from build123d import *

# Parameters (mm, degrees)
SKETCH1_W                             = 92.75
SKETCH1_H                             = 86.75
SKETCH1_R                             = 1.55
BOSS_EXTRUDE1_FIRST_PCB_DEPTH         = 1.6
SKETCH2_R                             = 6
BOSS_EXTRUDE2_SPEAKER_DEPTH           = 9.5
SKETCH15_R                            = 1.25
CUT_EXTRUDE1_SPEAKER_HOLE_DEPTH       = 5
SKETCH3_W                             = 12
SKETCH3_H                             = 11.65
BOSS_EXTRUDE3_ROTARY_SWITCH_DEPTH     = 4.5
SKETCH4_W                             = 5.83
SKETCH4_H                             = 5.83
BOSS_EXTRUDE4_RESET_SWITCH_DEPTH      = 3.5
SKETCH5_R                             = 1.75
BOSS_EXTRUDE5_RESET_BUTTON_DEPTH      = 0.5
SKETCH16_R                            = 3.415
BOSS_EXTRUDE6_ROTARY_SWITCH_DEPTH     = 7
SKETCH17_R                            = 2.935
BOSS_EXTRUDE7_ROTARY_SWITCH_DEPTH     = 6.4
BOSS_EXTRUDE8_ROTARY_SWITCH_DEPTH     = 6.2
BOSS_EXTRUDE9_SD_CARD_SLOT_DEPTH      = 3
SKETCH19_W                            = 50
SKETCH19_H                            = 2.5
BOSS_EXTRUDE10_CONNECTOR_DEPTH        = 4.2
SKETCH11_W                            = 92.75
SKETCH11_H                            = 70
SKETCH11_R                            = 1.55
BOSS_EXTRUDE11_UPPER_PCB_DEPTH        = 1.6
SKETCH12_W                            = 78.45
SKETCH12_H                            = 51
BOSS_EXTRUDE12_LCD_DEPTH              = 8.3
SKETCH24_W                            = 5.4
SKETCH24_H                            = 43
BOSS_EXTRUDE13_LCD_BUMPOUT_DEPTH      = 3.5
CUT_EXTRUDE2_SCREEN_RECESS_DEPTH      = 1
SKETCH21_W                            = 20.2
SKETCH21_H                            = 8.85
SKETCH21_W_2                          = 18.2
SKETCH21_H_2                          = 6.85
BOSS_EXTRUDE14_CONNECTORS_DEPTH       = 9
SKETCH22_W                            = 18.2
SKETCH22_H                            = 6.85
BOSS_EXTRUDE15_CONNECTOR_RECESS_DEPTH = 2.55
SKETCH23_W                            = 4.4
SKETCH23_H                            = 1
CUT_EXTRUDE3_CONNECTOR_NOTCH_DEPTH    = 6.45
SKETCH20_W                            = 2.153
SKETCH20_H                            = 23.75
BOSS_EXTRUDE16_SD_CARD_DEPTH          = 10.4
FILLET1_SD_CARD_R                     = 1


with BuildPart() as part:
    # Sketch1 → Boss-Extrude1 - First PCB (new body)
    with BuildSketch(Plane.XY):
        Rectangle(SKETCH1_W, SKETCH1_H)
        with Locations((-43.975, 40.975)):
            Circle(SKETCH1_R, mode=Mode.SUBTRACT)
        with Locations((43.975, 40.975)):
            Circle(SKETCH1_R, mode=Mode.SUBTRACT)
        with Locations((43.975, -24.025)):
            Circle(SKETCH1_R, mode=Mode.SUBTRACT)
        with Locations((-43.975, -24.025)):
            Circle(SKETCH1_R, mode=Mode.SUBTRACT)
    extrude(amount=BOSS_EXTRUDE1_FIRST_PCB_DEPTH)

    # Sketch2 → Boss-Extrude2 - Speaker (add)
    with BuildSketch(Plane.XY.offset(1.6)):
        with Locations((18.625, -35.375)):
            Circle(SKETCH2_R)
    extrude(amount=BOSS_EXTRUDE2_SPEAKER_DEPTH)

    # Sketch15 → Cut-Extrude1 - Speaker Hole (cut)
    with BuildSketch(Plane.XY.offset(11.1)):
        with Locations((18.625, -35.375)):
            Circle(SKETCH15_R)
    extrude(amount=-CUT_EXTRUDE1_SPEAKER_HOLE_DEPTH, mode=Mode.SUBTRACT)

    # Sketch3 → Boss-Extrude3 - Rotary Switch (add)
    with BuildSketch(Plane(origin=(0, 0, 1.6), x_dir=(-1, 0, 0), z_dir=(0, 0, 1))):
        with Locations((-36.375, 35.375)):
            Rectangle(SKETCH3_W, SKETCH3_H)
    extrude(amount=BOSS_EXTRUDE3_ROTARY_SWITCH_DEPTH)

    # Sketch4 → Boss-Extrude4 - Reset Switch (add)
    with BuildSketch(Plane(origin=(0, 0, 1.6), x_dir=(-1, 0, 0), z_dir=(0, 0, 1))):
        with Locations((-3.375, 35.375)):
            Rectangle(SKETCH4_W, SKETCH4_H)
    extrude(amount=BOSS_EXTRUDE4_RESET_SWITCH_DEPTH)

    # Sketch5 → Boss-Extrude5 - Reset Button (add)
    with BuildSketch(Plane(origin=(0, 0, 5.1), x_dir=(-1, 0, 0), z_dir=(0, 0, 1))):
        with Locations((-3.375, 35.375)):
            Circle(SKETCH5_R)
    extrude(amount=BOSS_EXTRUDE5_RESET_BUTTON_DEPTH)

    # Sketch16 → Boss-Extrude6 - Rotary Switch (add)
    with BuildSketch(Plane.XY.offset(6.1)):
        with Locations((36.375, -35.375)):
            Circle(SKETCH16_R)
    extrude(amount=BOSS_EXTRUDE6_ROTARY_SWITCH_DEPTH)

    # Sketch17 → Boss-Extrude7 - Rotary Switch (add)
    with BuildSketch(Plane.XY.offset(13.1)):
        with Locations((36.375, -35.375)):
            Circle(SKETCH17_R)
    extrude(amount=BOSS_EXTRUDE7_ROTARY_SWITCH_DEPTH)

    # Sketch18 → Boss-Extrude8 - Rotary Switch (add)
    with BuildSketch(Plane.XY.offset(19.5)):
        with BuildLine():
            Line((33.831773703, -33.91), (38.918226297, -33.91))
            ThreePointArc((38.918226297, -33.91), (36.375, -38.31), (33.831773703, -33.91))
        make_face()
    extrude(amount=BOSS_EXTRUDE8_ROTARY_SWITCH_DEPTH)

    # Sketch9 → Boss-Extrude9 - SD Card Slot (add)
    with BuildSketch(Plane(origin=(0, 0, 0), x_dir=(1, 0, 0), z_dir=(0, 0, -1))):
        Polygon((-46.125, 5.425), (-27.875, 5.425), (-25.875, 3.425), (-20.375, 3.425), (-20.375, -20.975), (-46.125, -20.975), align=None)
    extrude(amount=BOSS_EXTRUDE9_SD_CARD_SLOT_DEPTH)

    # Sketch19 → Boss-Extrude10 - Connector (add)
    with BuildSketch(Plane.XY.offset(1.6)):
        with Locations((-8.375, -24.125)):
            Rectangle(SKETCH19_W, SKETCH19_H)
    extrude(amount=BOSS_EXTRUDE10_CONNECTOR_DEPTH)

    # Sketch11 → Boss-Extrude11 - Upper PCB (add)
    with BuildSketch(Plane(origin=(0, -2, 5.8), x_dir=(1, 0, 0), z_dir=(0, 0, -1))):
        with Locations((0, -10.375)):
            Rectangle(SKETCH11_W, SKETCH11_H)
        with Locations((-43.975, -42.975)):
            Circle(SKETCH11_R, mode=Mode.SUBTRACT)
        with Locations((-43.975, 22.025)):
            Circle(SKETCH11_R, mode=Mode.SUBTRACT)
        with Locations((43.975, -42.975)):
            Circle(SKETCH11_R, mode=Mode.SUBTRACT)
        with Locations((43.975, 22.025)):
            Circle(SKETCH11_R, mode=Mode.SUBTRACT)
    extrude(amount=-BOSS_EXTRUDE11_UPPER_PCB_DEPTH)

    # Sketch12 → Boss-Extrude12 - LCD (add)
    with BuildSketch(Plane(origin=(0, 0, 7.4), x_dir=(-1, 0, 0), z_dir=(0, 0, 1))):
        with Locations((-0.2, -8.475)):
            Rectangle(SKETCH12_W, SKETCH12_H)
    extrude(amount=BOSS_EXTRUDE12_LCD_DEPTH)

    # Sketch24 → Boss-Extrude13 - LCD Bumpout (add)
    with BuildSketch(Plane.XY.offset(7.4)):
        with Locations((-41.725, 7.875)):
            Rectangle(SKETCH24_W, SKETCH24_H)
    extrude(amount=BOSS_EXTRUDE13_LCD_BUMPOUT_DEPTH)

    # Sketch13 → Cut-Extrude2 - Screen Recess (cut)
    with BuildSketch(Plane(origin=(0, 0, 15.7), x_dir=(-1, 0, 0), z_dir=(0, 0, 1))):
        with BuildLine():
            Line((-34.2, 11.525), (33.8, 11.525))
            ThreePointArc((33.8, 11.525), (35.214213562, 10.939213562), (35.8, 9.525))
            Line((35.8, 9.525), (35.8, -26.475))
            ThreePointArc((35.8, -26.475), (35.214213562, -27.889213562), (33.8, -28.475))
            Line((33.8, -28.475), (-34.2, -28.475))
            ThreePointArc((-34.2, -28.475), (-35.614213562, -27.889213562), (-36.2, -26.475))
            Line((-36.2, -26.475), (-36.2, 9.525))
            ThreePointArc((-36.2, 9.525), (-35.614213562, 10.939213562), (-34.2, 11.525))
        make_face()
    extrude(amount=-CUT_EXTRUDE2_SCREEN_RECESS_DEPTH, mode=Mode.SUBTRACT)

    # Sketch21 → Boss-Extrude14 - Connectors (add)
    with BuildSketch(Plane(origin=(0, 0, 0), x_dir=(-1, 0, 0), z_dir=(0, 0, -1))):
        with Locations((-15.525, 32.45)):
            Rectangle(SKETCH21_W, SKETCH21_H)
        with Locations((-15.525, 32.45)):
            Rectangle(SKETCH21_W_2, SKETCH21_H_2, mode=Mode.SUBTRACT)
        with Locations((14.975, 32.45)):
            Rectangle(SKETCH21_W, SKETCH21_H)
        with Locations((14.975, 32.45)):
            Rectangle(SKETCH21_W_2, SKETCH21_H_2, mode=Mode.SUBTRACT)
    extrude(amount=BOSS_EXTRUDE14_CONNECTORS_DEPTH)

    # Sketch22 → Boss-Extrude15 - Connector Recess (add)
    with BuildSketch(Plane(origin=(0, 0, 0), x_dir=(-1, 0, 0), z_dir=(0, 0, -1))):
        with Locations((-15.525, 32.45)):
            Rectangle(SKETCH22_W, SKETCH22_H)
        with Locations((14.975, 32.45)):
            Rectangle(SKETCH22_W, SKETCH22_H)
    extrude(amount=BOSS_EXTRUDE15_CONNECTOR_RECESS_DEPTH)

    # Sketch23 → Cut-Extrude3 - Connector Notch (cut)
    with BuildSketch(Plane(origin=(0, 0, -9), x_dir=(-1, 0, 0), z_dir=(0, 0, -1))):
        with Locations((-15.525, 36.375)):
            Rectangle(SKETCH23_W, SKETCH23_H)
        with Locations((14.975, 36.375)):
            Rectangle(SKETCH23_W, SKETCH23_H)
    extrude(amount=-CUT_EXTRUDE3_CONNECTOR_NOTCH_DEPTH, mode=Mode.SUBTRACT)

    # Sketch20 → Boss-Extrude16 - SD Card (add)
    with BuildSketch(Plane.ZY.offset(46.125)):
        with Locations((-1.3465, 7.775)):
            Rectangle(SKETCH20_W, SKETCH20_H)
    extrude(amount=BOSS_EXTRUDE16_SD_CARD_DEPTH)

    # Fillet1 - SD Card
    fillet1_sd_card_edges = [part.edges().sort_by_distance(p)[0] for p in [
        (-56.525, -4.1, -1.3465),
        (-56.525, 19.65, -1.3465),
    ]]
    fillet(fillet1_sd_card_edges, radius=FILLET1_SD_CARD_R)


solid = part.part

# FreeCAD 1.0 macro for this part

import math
import FreeCAD as App
import Part
import Sketcher
from FreeCAD import Vector
Q = App.Units.Quantity


def edges_at(feature, points):
    """Names of the edges that pass closest to the given points."""
    edges = feature.Shape.Edges
    near = lambda p: min(range(len(edges)), key=lambda i: edges[i].distToShape(Part.Vertex(*p))[0])
    return sorted({f"Edge{near(p) + 1}" for p in points})

doc = App.newDocument("Part")
body = doc.addObject("PartDesign::Body", "Body")

# Sketch on XY plane
sketch1 = body.newObject("Sketcher::SketchObject", "Sketch")
sketch1.AttachmentSupport = (doc.getObject("XY_Plane"), [""])
sketch1.MapMode = "FlatFace"
sketch1.addGeometry(Part.LineSegment(Vector(-46.4, 43.4, 0), Vector(-46.4, -43.4, 0)), False)
sketch1.addGeometry(Part.LineSegment(Vector(-46.4, -43.4, 0), Vector(46.4, -43.4, 0)), False)
sketch1.addGeometry(Part.LineSegment(Vector(46.4, -43.4, 0), Vector(46.4, 43.4, 0)), False)
sketch1.addGeometry(Part.LineSegment(Vector(46.4, 43.4, 0), Vector(-46.4, 43.4, 0)), False)
sketch1.addGeometry(Part.Circle(Vector(-44, -24, 0), Vector(0, 0, 1), 1.6), False)
sketch1.addGeometry(Part.Circle(Vector(44, -24, 0), Vector(0, 0, 1), 1.6), False)
sketch1.addGeometry(Part.Circle(Vector(-44, 41, 0), Vector(0, 0, 1), 1.6), False)
sketch1.addGeometry(Part.Circle(Vector(44, 41, 0), Vector(0, 0, 1), 1.6), False)
sketch1.addConstraint(Sketcher.Constraint("Coincident", 0, 2, 1, 1))
sketch1.addConstraint(Sketcher.Constraint("Coincident", 1, 2, 2, 1))
sketch1.addConstraint(Sketcher.Constraint("Coincident", 2, 2, 3, 1))
sketch1.addConstraint(Sketcher.Constraint("Coincident", 3, 2, 0, 1))
sketch1.addConstraint(Sketcher.Constraint("Vertical", 0))
sketch1.addConstraint(Sketcher.Constraint("Horizontal", 1))
sketch1.addConstraint(Sketcher.Constraint("Vertical", 2))
sketch1.addConstraint(Sketcher.Constraint("Horizontal", 3))
sketch1.addConstraint(Sketcher.Constraint("Equal", 4, 5))
sketch1.addConstraint(Sketcher.Constraint("Equal", 5, 6))
sketch1.addConstraint(Sketcher.Constraint("Equal", 6, 7))
sketch1.addConstraint(Sketcher.Constraint("Symmetric", 0, 2, 2, 2, -1, 1))
sketch1.addConstraint(Sketcher.Constraint("Symmetric", 4, 3, 5, 3, -2))
sketch1.addConstraint(Sketcher.Constraint("Symmetric", 6, 3, 7, 3, -2))
sketch1.addConstraint(Sketcher.Constraint("Vertical", 4, 3, 6, 3))
sketch1.addConstraint(Sketcher.Constraint("Diameter", 4, 3.1))
sketch1.addConstraint(Sketcher.Constraint("DistanceY", 4, 3, 6, 3, 65.0))
sketch1.addConstraint(Sketcher.Constraint("DistanceX", 1, 1, 1, 2, 92.75))
sketch1.addConstraint(Sketcher.Constraint("DistanceY", 0, 2, 0, 1, 86.75))
sketch1.addConstraint(Sketcher.Constraint("DistanceX", 0, 2, 4, 3, 2.4))
sketch1.addConstraint(Sketcher.Constraint("DistanceY", 7, 3, 2, 2, 2.4))
pad1 = body.newObject("PartDesign::Pad", "Pad")
pad1.Profile = sketch1
pad1.Length = 1.6

# Sketch on XY plane
sketch2 = body.newObject("Sketcher::SketchObject", "Sketch001")
sketch2.AttachmentSupport = (doc.getObject("XY_Plane"), [""])
sketch2.MapMode = "FlatFace"
sketch2.AttachmentOffset = App.Placement(Vector(0, 0, 1.6), App.Rotation())
sketch2.addGeometry(Part.Circle(Vector(19, -35, 0), Vector(0, 0, 1), 6), False)
sketch2.addConstraint(Sketcher.Constraint("Diameter", 0, 12.0))
sketch2.addConstraint(Sketcher.Constraint("DistanceX", -1, 1, 0, 3, 18.625))
sketch2.addConstraint(Sketcher.Constraint("DistanceY", 0, 3, -1, 1, 35.375))
pad2 = body.newObject("PartDesign::Pad", "Pad001")
pad2.Profile = sketch2
pad2.Length = 9.5

# Sketch on XY plane
sketch3 = body.newObject("Sketcher::SketchObject", "Sketch002")
sketch3.AttachmentSupport = (doc.getObject("XY_Plane"), [""])
sketch3.MapMode = "FlatFace"
sketch3.AttachmentOffset = App.Placement(Vector(0, 0, 11.1), App.Rotation())
sketch3.addGeometry(Part.Circle(Vector(18.6, -35.4, 0), Vector(0, 0, 1), 1.2), False)
sketch3.addConstraint(Sketcher.Constraint("Diameter", 0, 2.5))
sketch3.addConstraint(Sketcher.Constraint("DistanceX", -1, 1, 0, 3, 18.625))
sketch3.addConstraint(Sketcher.Constraint("DistanceY", 0, 3, -1, 1, 35.375))
pocket1 = body.newObject("PartDesign::Pocket", "Pocket")
pocket1.Profile = sketch3
pocket1.Length = 5

# Sketch on XY plane
sketch4 = body.newObject("Sketcher::SketchObject", "Sketch003")
sketch4.AttachmentSupport = (doc.getObject("XY_Plane"), [""])
sketch4.MapMode = "FlatFace"
sketch4.AttachmentOffset = App.Placement(Vector(0, 0, 1.6), App.Rotation())
sketch4.addGeometry(Part.LineSegment(Vector(42, -41, 0), Vector(42, -30, 0)), False)
sketch4.addGeometry(Part.LineSegment(Vector(42, -30, 0), Vector(30, -30, 0)), False)
sketch4.addGeometry(Part.LineSegment(Vector(30, -30, 0), Vector(30, -41, 0)), False)
sketch4.addGeometry(Part.LineSegment(Vector(30, -41, 0), Vector(42, -41, 0)), False)
sketch4.addConstraint(Sketcher.Constraint("Coincident", 0, 2, 1, 1))
sketch4.addConstraint(Sketcher.Constraint("Coincident", 1, 2, 2, 1))
sketch4.addConstraint(Sketcher.Constraint("Coincident", 2, 2, 3, 1))
sketch4.addConstraint(Sketcher.Constraint("Coincident", 3, 2, 0, 1))
sketch4.addConstraint(Sketcher.Constraint("Vertical", 0))
sketch4.addConstraint(Sketcher.Constraint("Horizontal", 1))
sketch4.addConstraint(Sketcher.Constraint("Vertical", 2))
sketch4.addConstraint(Sketcher.Constraint("Horizontal", 3))
sketch4.addConstraint(Sketcher.Constraint("DistanceX", 1, 2, 1, 1, 12.0))
sketch4.addConstraint(Sketcher.Constraint("DistanceY", 0, 1, 0, 2, 11.65))
sketch4.addConstraint(Sketcher.Constraint("DistanceY", 2, 2, -1, 1, 41.2))
sketch4.addConstraint(Sketcher.Constraint("DistanceX", -1, 1, 0, 2, 42.375))
pad3 = body.newObject("PartDesign::Pad", "Pad002")
pad3.Profile = sketch4
pad3.Length = 4.5

# Sketch on XY plane
sketch5 = body.newObject("Sketcher::SketchObject", "Sketch004")
sketch5.AttachmentSupport = (doc.getObject("XY_Plane"), [""])
sketch5.MapMode = "FlatFace"
sketch5.AttachmentOffset = App.Placement(Vector(0, 0, 1.6), App.Rotation())
sketch5.addGeometry(Part.LineSegment(Vector(6, -38, 0), Vector(6, -32, 0)), False)
sketch5.addGeometry(Part.LineSegment(Vector(6, -32, 0), Vector(0, -32, 0)), False)
sketch5.addGeometry(Part.LineSegment(Vector(0, -32, 0), Vector(0, -38, 0)), False)
sketch5.addGeometry(Part.LineSegment(Vector(0, -38, 0), Vector(6, -38, 0)), False)
sketch5.addConstraint(Sketcher.Constraint("Coincident", 0, 2, 1, 1))
sketch5.addConstraint(Sketcher.Constraint("Coincident", 1, 2, 2, 1))
sketch5.addConstraint(Sketcher.Constraint("Coincident", 2, 2, 3, 1))
sketch5.addConstraint(Sketcher.Constraint("Coincident", 3, 2, 0, 1))
sketch5.addConstraint(Sketcher.Constraint("Vertical", 0))
sketch5.addConstraint(Sketcher.Constraint("Horizontal", 1))
sketch5.addConstraint(Sketcher.Constraint("Vertical", 2))
sketch5.addConstraint(Sketcher.Constraint("Horizontal", 3))
sketch5.addConstraint(Sketcher.Constraint("Equal", 3, 0))
sketch5.addConstraint(Sketcher.Constraint("DistanceX", 1, 2, 1, 1, 5.83))
sketch5.addConstraint(Sketcher.Constraint("DistanceX", -1, 1, 0, 2, 6.29))
sketch5.addConstraint(Sketcher.Constraint("DistanceY", 0, 2, -1, 1, 32.46))
pad4 = body.newObject("PartDesign::Pad", "Pad003")
pad4.Profile = sketch5
pad4.Length = 3.5

# Sketch on XY plane
sketch6 = body.newObject("Sketcher::SketchObject", "Sketch005")
sketch6.AttachmentSupport = (doc.getObject("XY_Plane"), [""])
sketch6.MapMode = "FlatFace"
sketch6.AttachmentOffset = App.Placement(Vector(0, 0, 5.1), App.Rotation())
sketch6.addGeometry(Part.Circle(Vector(3.4, -35.4, 0), Vector(0, 0, 1), 1.8), False)
sketch6.addConstraint(Sketcher.Constraint("Diameter", 0, 3.5))
sketch6.addConstraint(Sketcher.Constraint("DistanceX", -1, 1, 0, 3, 3.375))
sketch6.addConstraint(Sketcher.Constraint("DistanceY", 0, 3, -1, 1, 35.375))
pad5 = body.newObject("PartDesign::Pad", "Pad004")
pad5.Profile = sketch6
pad5.Length = 0.5

# Sketch on XY plane
sketch7 = body.newObject("Sketcher::SketchObject", "Sketch006")
sketch7.AttachmentSupport = (doc.getObject("XY_Plane"), [""])
sketch7.MapMode = "FlatFace"
sketch7.AttachmentOffset = App.Placement(Vector(0, 0, 6.1), App.Rotation())
sketch7.addGeometry(Part.Circle(Vector(36.4, -35.4, 0), Vector(0, 0, 1), 3.4), False)
sketch7.addConstraint(Sketcher.Constraint("Diameter", 0, 6.83))
sketch7.addConstraint(Sketcher.Constraint("DistanceX", -1, 1, 0, 3, 36.375))
sketch7.addConstraint(Sketcher.Constraint("DistanceY", 0, 3, -1, 1, 35.375))
pad6 = body.newObject("PartDesign::Pad", "Pad005")
pad6.Profile = sketch7
pad6.Length = 7

# Sketch on XY plane
sketch8 = body.newObject("Sketcher::SketchObject", "Sketch007")
sketch8.AttachmentSupport = (doc.getObject("XY_Plane"), [""])
sketch8.MapMode = "FlatFace"
sketch8.AttachmentOffset = App.Placement(Vector(0, 0, 13.1), App.Rotation())
sketch8.addGeometry(Part.Circle(Vector(36.4, -35.4, 0), Vector(0, 0, 1), 2.9), False)
sketch8.addConstraint(Sketcher.Constraint("Diameter", 0, 5.87))
sketch8.addConstraint(Sketcher.Constraint("DistanceX", -1, 1, 0, 3, 36.375))
sketch8.addConstraint(Sketcher.Constraint("DistanceY", 0, 3, -1, 1, 35.375))
pad7 = body.newObject("PartDesign::Pad", "Pad006")
pad7.Profile = sketch8
pad7.Length = 6.4

# Sketch on XY plane
sketch9 = body.newObject("Sketcher::SketchObject", "Sketch008")
sketch9.AttachmentSupport = (doc.getObject("XY_Plane"), [""])
sketch9.MapMode = "FlatFace"
sketch9.AttachmentOffset = App.Placement(Vector(0, 0, 19.5), App.Rotation())
sketch9.addGeometry(Part.LineSegment(Vector(38.9, -33.9, 0), Vector(33.8, -33.9, 0)), False)
sketch9.addGeometry(Part.ArcOfCircle(Part.Circle(Vector(36.4, -35.4, 0), Vector(0, 0, 1), 2.9), math.radians(150), math.radians(390)), False)
sketch9.addConstraint(Sketcher.Constraint("Coincident", 0, 1, 1, 2))
sketch9.addConstraint(Sketcher.Constraint("Coincident", 1, 1, 0, 2))
sketch9.addConstraint(Sketcher.Constraint("Horizontal", 0))
sketch9.addConstraint(Sketcher.Constraint("Radius", 1, 2.935))
sketch9.addConstraint(Sketcher.Constraint("DistanceY", 0, 1, -1, 1, 33.91))
sketch9.addConstraint(Sketcher.Constraint("DistanceX", -1, 1, 1, 3, 36.375))
sketch9.addConstraint(Sketcher.Constraint("DistanceY", 1, 3, -1, 1, 35.375))
pad8 = body.newObject("PartDesign::Pad", "Pad007")
pad8.Profile = sketch9
pad8.Length = 6.2

# Sketch on XY plane
sketch10 = body.newObject("Sketcher::SketchObject", "Sketch009")
sketch10.AttachmentSupport = (doc.getObject("XY_Plane"), [""])
sketch10.MapMode = "FlatFace"
sketch10.addGeometry(Part.LineSegment(Vector(-27.9, -5.4, 0), Vector(-46.1, -5.4, 0)), False)
sketch10.addGeometry(Part.LineSegment(Vector(-46.1, -5.4, 0), Vector(-46.1, 21, 0)), False)
sketch10.addGeometry(Part.LineSegment(Vector(-46.1, 21, 0), Vector(-20.4, 21, 0)), False)
sketch10.addGeometry(Part.LineSegment(Vector(-20.4, 21, 0), Vector(-20.4, -3.4, 0)), False)
sketch10.addGeometry(Part.LineSegment(Vector(-20.4, -3.4, 0), Vector(-25.9, -3.4, 0)), False)
sketch10.addGeometry(Part.LineSegment(Vector(-25.9, -3.4, 0), Vector(-27.9, -5.4, 0)), False)
sketch10.addConstraint(Sketcher.Constraint("Coincident", 0, 2, 1, 1))
sketch10.addConstraint(Sketcher.Constraint("Coincident", 1, 2, 2, 1))
sketch10.addConstraint(Sketcher.Constraint("Coincident", 2, 2, 3, 1))
sketch10.addConstraint(Sketcher.Constraint("Coincident", 3, 2, 4, 1))
sketch10.addConstraint(Sketcher.Constraint("Coincident", 4, 2, 5, 1))
sketch10.addConstraint(Sketcher.Constraint("Coincident", 5, 2, 0, 1))
sketch10.addConstraint(Sketcher.Constraint("Horizontal", 0))
sketch10.addConstraint(Sketcher.Constraint("Vertical", 1))
sketch10.addConstraint(Sketcher.Constraint("Horizontal", 2))
sketch10.addConstraint(Sketcher.Constraint("Vertical", 3))
sketch10.addConstraint(Sketcher.Constraint("Horizontal", 4))
sketch10.addConstraint(Sketcher.Constraint("Angle", 5, Q("-135 deg")))
sketch10.addConstraint(Sketcher.Constraint("DistanceX", 4, 2, 4, 1, 5.5))
sketch10.addConstraint(Sketcher.Constraint("DistanceY", 1, 1, 1, 2, 26.4))
sketch10.addConstraint(Sketcher.Constraint("DistanceY", 3, 2, 3, 1, 24.4))
sketch10.addConstraint(Sketcher.Constraint("DistanceX", 0, 2, 0, 1, 18.25))
sketch10.addConstraint(Sketcher.Constraint("DistanceX", 0, 2, -1, 1, 46.125))
sketch10.addConstraint(Sketcher.Constraint("DistanceY", 0, 2, -1, 1, 5.425))
pad9 = body.newObject("PartDesign::Pad", "Pad008")
pad9.Profile = sketch10
pad9.Length = 3
pad9.Reversed = True

# Sketch on XY plane
sketch11 = body.newObject("Sketcher::SketchObject", "Sketch010")
sketch11.AttachmentSupport = (doc.getObject("XY_Plane"), [""])
sketch11.MapMode = "FlatFace"
sketch11.AttachmentOffset = App.Placement(Vector(0, 0, 1.6), App.Rotation())
sketch11.addGeometry(Part.LineSegment(Vector(-33.4, -22.9, 0), Vector(-33.4, -25.4, 0)), False)
sketch11.addGeometry(Part.LineSegment(Vector(-33.4, -25.4, 0), Vector(16.6, -25.4, 0)), False)
sketch11.addGeometry(Part.LineSegment(Vector(16.6, -25.4, 0), Vector(16.6, -22.9, 0)), False)
sketch11.addGeometry(Part.LineSegment(Vector(16.6, -22.9, 0), Vector(-33.4, -22.9, 0)), False)
sketch11.addConstraint(Sketcher.Constraint("Coincident", 0, 2, 1, 1))
sketch11.addConstraint(Sketcher.Constraint("Coincident", 1, 2, 2, 1))
sketch11.addConstraint(Sketcher.Constraint("Coincident", 2, 2, 3, 1))
sketch11.addConstraint(Sketcher.Constraint("Coincident", 3, 2, 0, 1))
sketch11.addConstraint(Sketcher.Constraint("Vertical", 0))
sketch11.addConstraint(Sketcher.Constraint("Horizontal", 1))
sketch11.addConstraint(Sketcher.Constraint("Vertical", 2))
sketch11.addConstraint(Sketcher.Constraint("Horizontal", 3))
sketch11.addConstraint(Sketcher.Constraint("DistanceX", 1, 1, 1, 2, 50.0))
sketch11.addConstraint(Sketcher.Constraint("DistanceY", 0, 2, 0, 1, 2.5))
sketch11.addConstraint(Sketcher.Constraint("DistanceX", 0, 2, -1, 1, 33.375))
sketch11.addConstraint(Sketcher.Constraint("DistanceY", 0, 2, -1, 1, 25.375))
pad10 = body.newObject("PartDesign::Pad", "Pad009")
pad10.Profile = sketch11
pad10.Length = 4.2

# Sketch on XY plane
sketch12 = body.newObject("Sketcher::SketchObject", "Sketch011")
sketch12.AttachmentSupport = (doc.getObject("XY_Plane"), [""])
sketch12.MapMode = "FlatFace"
sketch12.AttachmentOffset = App.Placement(Vector(0, 0, 5.8), App.Rotation())
sketch12.addGeometry(Part.LineSegment(Vector(-46.4, -26.6, 0), Vector(-46.4, 43.4, 0)), False)
sketch12.addGeometry(Part.LineSegment(Vector(-46.4, 43.4, 0), Vector(46.4, 43.4, 0)), False)
sketch12.addGeometry(Part.LineSegment(Vector(46.4, 43.4, 0), Vector(46.4, -26.6, 0)), False)
sketch12.addGeometry(Part.LineSegment(Vector(46.4, -26.6, 0), Vector(-46.4, -26.6, 0)), False)
sketch12.addGeometry(Part.Circle(Vector(-44, 41, 0), Vector(0, 0, 1), 1.6), False)
sketch12.addGeometry(Part.Circle(Vector(44, 41, 0), Vector(0, 0, 1), 1.6), False)
sketch12.addGeometry(Part.Circle(Vector(-44, -24, 0), Vector(0, 0, 1), 1.6), False)
sketch12.addGeometry(Part.Circle(Vector(44, -24, 0), Vector(0, 0, 1), 1.6), False)
sketch12.addConstraint(Sketcher.Constraint("Coincident", 0, 2, 1, 1))
sketch12.addConstraint(Sketcher.Constraint("Coincident", 1, 2, 2, 1))
sketch12.addConstraint(Sketcher.Constraint("Coincident", 2, 2, 3, 1))
sketch12.addConstraint(Sketcher.Constraint("Coincident", 3, 2, 0, 1))
sketch12.addConstraint(Sketcher.Constraint("Vertical", 0))
sketch12.addConstraint(Sketcher.Constraint("Horizontal", 1))
sketch12.addConstraint(Sketcher.Constraint("Vertical", 2))
sketch12.addConstraint(Sketcher.Constraint("Horizontal", 3))
sketch12.addConstraint(Sketcher.Constraint("Equal", 4, 5))
sketch12.addConstraint(Sketcher.Constraint("Equal", 5, 6))
sketch12.addConstraint(Sketcher.Constraint("Equal", 6, 7))
sketch12.addConstraint(Sketcher.Constraint("Symmetric", 4, 3, 5, 3, -2))
sketch12.addConstraint(Sketcher.Constraint("Symmetric", 6, 3, 7, 3, -2))
sketch12.addConstraint(Sketcher.Constraint("Vertical", 4, 3, 6, 3))
sketch12.addConstraint(Sketcher.Constraint("Diameter", 4, 3.1))
sketch12.addConstraint(Sketcher.Constraint("DistanceY", 0, 1, 0, 2, 70.0))
sketch12.addConstraint(Sketcher.Constraint("DistanceY", 6, 3, 4, 3, 65.0))
sketch12.addConstraint(Sketcher.Constraint("DistanceX", 1, 1, 1, 2, 92.75))
sketch12.addConstraint(Sketcher.Constraint("DistanceX", 0, 2, 4, 3, 2.4))
sketch12.addConstraint(Sketcher.Constraint("DistanceY", 4, 3, 0, 2, 2.4))
sketch12.addConstraint(Sketcher.Constraint("DistanceX", 5, 3, 1, 2, 2.4))
sketch12.addConstraint(Sketcher.Constraint("DistanceY", -1, 1, 4, 3, 40.975))
pad11 = body.newObject("PartDesign::Pad", "Pad010")
pad11.Profile = sketch12
pad11.Length = 1.6

# Sketch on XY plane
sketch13 = body.newObject("Sketcher::SketchObject", "Sketch012")
sketch13.AttachmentSupport = (doc.getObject("XY_Plane"), [""])
sketch13.MapMode = "FlatFace"
sketch13.AttachmentOffset = App.Placement(Vector(0, 0, 7.4), App.Rotation())
sketch13.addGeometry(Part.LineSegment(Vector(39, -17, 0), Vector(39, 34, 0)), False)
sketch13.addGeometry(Part.LineSegment(Vector(39, 34, 0), Vector(-39, 34, 0)), False)
sketch13.addGeometry(Part.LineSegment(Vector(-39, 34, 0), Vector(-39, -17, 0)), False)
sketch13.addGeometry(Part.LineSegment(Vector(-39, -17, 0), Vector(39, -17, 0)), False)
sketch13.addConstraint(Sketcher.Constraint("Coincident", 0, 2, 1, 1))
sketch13.addConstraint(Sketcher.Constraint("Coincident", 1, 2, 2, 1))
sketch13.addConstraint(Sketcher.Constraint("Coincident", 2, 2, 3, 1))
sketch13.addConstraint(Sketcher.Constraint("Coincident", 3, 2, 0, 1))
sketch13.addConstraint(Sketcher.Constraint("Vertical", 0))
sketch13.addConstraint(Sketcher.Constraint("Horizontal", 1))
sketch13.addConstraint(Sketcher.Constraint("Vertical", 2))
sketch13.addConstraint(Sketcher.Constraint("Horizontal", 3))
sketch13.addConstraint(Sketcher.Constraint("DistanceY", 0, 1, 0, 2, 51.0))
sketch13.addConstraint(Sketcher.Constraint("DistanceX", 1, 2, 1, 1, 78.45))
sketch13.addConstraint(Sketcher.Constraint("DistanceX", -1, 1, 0, 2, 39.425))
sketch13.addConstraint(Sketcher.Constraint("DistanceY", -1, 1, 0, 2, 33.975))
pad12 = body.newObject("PartDesign::Pad", "Pad011")
pad12.Profile = sketch13
pad12.Length = 8.3

# Sketch on XY plane
sketch14 = body.newObject("Sketcher::SketchObject", "Sketch013")
sketch14.AttachmentSupport = (doc.getObject("XY_Plane"), [""])
sketch14.MapMode = "FlatFace"
sketch14.AttachmentOffset = App.Placement(Vector(0, 0, 7.4), App.Rotation())
sketch14.addGeometry(Part.LineSegment(Vector(-44, 29, 0), Vector(-44, -14, 0)), False)
sketch14.addGeometry(Part.LineSegment(Vector(-44, -14, 0), Vector(-39, -14, 0)), False)
sketch14.addGeometry(Part.LineSegment(Vector(-39, -14, 0), Vector(-39, 29, 0)), False)
sketch14.addGeometry(Part.LineSegment(Vector(-39, 29, 0), Vector(-44, 29, 0)), False)
sketch14.addConstraint(Sketcher.Constraint("Coincident", 0, 2, 1, 1))
sketch14.addConstraint(Sketcher.Constraint("Coincident", 1, 2, 2, 1))
sketch14.addConstraint(Sketcher.Constraint("Coincident", 2, 2, 3, 1))
sketch14.addConstraint(Sketcher.Constraint("Coincident", 3, 2, 0, 1))
sketch14.addConstraint(Sketcher.Constraint("Vertical", 0))
sketch14.addConstraint(Sketcher.Constraint("Horizontal", 1))
sketch14.addConstraint(Sketcher.Constraint("Vertical", 2))
sketch14.addConstraint(Sketcher.Constraint("Horizontal", 3))
sketch14.addConstraint(Sketcher.Constraint("DistanceY", 0, 2, 0, 1, 43.0))
sketch14.addConstraint(Sketcher.Constraint("DistanceX", 1, 1, 1, 2, 5.4))
sketch14.addConstraint(Sketcher.Constraint("DistanceX", 0, 2, -1, 1, 44.425))
sketch14.addConstraint(Sketcher.Constraint("DistanceY", 0, 2, -1, 1, 13.625))
pad13 = body.newObject("PartDesign::Pad", "Pad012")
pad13.Profile = sketch14
pad13.Length = 3.5

# Sketch on XY plane
sketch15 = body.newObject("Sketcher::SketchObject", "Sketch014")
sketch15.AttachmentSupport = (doc.getObject("XY_Plane"), [""])
sketch15.MapMode = "FlatFace"
sketch15.AttachmentOffset = App.Placement(Vector(0, 0, 15.7), App.Rotation())
sketch15.addGeometry(Part.LineSegment(Vector(-33.8, -11.5, 0), Vector(34.2, -11.5, 0)), False)
sketch15.addGeometry(Part.ArcOfCircle(Part.Circle(Vector(34.2, -9.5, 0), Vector(0, 0, 1), 2), math.radians(-90), math.radians(0)), False)
sketch15.addGeometry(Part.LineSegment(Vector(36.2, -9.5, 0), Vector(36.2, 26.5, 0)), False)
sketch15.addGeometry(Part.ArcOfCircle(Part.Circle(Vector(34.2, 26.5, 0), Vector(0, 0, 1), 2), math.radians(0), math.radians(90)), False)
sketch15.addGeometry(Part.LineSegment(Vector(34.2, 28.5, 0), Vector(-33.8, 28.5, 0)), False)
sketch15.addGeometry(Part.ArcOfCircle(Part.Circle(Vector(-33.8, 26.5, 0), Vector(0, 0, 1), 2), math.radians(90), math.radians(180)), False)
sketch15.addGeometry(Part.LineSegment(Vector(-35.8, 26.5, 0), Vector(-35.8, -9.5, 0)), False)
sketch15.addGeometry(Part.ArcOfCircle(Part.Circle(Vector(-33.8, -9.5, 0), Vector(0, 0, 1), 2), math.radians(-180), math.radians(-90)), False)
sketch15.addConstraint(Sketcher.Constraint("Tangent", 0, 2, 1, 1))
sketch15.addConstraint(Sketcher.Constraint("Tangent", 1, 2, 2, 1))
sketch15.addConstraint(Sketcher.Constraint("Tangent", 2, 2, 3, 1))
sketch15.addConstraint(Sketcher.Constraint("Tangent", 3, 2, 4, 1))
sketch15.addConstraint(Sketcher.Constraint("Tangent", 4, 2, 5, 1))
sketch15.addConstraint(Sketcher.Constraint("Tangent", 5, 2, 6, 1))
sketch15.addConstraint(Sketcher.Constraint("Tangent", 6, 2, 7, 1))
sketch15.addConstraint(Sketcher.Constraint("Tangent", 7, 2, 0, 1))
sketch15.addConstraint(Sketcher.Constraint("Horizontal", 0))
sketch15.addConstraint(Sketcher.Constraint("Vertical", 2))
sketch15.addConstraint(Sketcher.Constraint("Horizontal", 4))
sketch15.addConstraint(Sketcher.Constraint("Vertical", 6))
sketch15.addConstraint(Sketcher.Constraint("Equal", 1, 3))
sketch15.addConstraint(Sketcher.Constraint("Equal", 3, 5))
sketch15.addConstraint(Sketcher.Constraint("Equal", 5, 7))
sketch15.addConstraint(Sketcher.Constraint("Radius", 1, 2.0))
sketch15.addConstraint(Sketcher.Constraint("DistanceX", 0, 1, 0, 2, 68.0))
sketch15.addConstraint(Sketcher.Constraint("DistanceY", 2, 1, 2, 2, 36.0))
sketch15.addConstraint(Sketcher.Constraint("DistanceX", -1, 1, 1, 3, 34.2))
sketch15.addConstraint(Sketcher.Constraint("DistanceY", 1, 3, -1, 1, 9.525))
pocket2 = body.newObject("PartDesign::Pocket", "Pocket001")
pocket2.Profile = sketch15
pocket2.Length = 1

# Sketch on XY plane
sketch16 = body.newObject("Sketcher::SketchObject", "Sketch015")
sketch16.AttachmentSupport = (doc.getObject("XY_Plane"), [""])
sketch16.MapMode = "FlatFace"
sketch16.addGeometry(Part.LineSegment(Vector(26, 37, 0), Vector(26, 28, 0)), False)
sketch16.addGeometry(Part.LineSegment(Vector(26, 28, 0), Vector(5, 28, 0)), False)
sketch16.addGeometry(Part.LineSegment(Vector(5, 28, 0), Vector(5, 37, 0)), False)
sketch16.addGeometry(Part.LineSegment(Vector(5, 37, 0), Vector(26, 37, 0)), False)
sketch16.addGeometry(Part.LineSegment(Vector(6, 29, 0), Vector(25, 29, 0)), False)
sketch16.addGeometry(Part.LineSegment(Vector(25, 29, 0), Vector(25, 36, 0)), False)
sketch16.addGeometry(Part.LineSegment(Vector(25, 36, 0), Vector(6, 36, 0)), False)
sketch16.addGeometry(Part.LineSegment(Vector(6, 36, 0), Vector(6, 29, 0)), False)
sketch16.addGeometry(Part.LineSegment(Vector(-5, 37, 0), Vector(-5, 28, 0)), False)
sketch16.addGeometry(Part.LineSegment(Vector(-5, 28, 0), Vector(-25, 28, 0)), False)
sketch16.addGeometry(Part.LineSegment(Vector(-25, 28, 0), Vector(-25, 37, 0)), False)
sketch16.addGeometry(Part.LineSegment(Vector(-25, 37, 0), Vector(-5, 37, 0)), False)
sketch16.addGeometry(Part.LineSegment(Vector(-24, 29, 0), Vector(-6, 29, 0)), False)
sketch16.addGeometry(Part.LineSegment(Vector(-6, 29, 0), Vector(-6, 36, 0)), False)
sketch16.addGeometry(Part.LineSegment(Vector(-6, 36, 0), Vector(-24, 36, 0)), False)
sketch16.addGeometry(Part.LineSegment(Vector(-24, 36, 0), Vector(-24, 29, 0)), False)
sketch16.addConstraint(Sketcher.Constraint("Coincident", 0, 2, 1, 1))
sketch16.addConstraint(Sketcher.Constraint("Coincident", 1, 2, 2, 1))
sketch16.addConstraint(Sketcher.Constraint("Coincident", 2, 2, 3, 1))
sketch16.addConstraint(Sketcher.Constraint("Coincident", 3, 2, 0, 1))
sketch16.addConstraint(Sketcher.Constraint("Coincident", 4, 2, 5, 1))
sketch16.addConstraint(Sketcher.Constraint("Coincident", 5, 2, 6, 1))
sketch16.addConstraint(Sketcher.Constraint("Coincident", 6, 2, 7, 1))
sketch16.addConstraint(Sketcher.Constraint("Coincident", 7, 2, 4, 1))
sketch16.addConstraint(Sketcher.Constraint("Coincident", 8, 2, 9, 1))
sketch16.addConstraint(Sketcher.Constraint("Coincident", 9, 2, 10, 1))
sketch16.addConstraint(Sketcher.Constraint("Coincident", 10, 2, 11, 1))
sketch16.addConstraint(Sketcher.Constraint("Coincident", 11, 2, 8, 1))
sketch16.addConstraint(Sketcher.Constraint("Coincident", 12, 2, 13, 1))
sketch16.addConstraint(Sketcher.Constraint("Coincident", 13, 2, 14, 1))
sketch16.addConstraint(Sketcher.Constraint("Coincident", 14, 2, 15, 1))
sketch16.addConstraint(Sketcher.Constraint("Coincident", 15, 2, 12, 1))
sketch16.addConstraint(Sketcher.Constraint("Vertical", 0))
sketch16.addConstraint(Sketcher.Constraint("Horizontal", 1))
sketch16.addConstraint(Sketcher.Constraint("Vertical", 2))
sketch16.addConstraint(Sketcher.Constraint("Horizontal", 3))
sketch16.addConstraint(Sketcher.Constraint("Horizontal", 4))
sketch16.addConstraint(Sketcher.Constraint("Vertical", 5))
sketch16.addConstraint(Sketcher.Constraint("Horizontal", 6))
sketch16.addConstraint(Sketcher.Constraint("Vertical", 7))
sketch16.addConstraint(Sketcher.Constraint("Vertical", 8))
sketch16.addConstraint(Sketcher.Constraint("Horizontal", 9))
sketch16.addConstraint(Sketcher.Constraint("Vertical", 10))
sketch16.addConstraint(Sketcher.Constraint("Horizontal", 11))
sketch16.addConstraint(Sketcher.Constraint("Horizontal", 12))
sketch16.addConstraint(Sketcher.Constraint("Vertical", 13))
sketch16.addConstraint(Sketcher.Constraint("Horizontal", 14))
sketch16.addConstraint(Sketcher.Constraint("Vertical", 15))
sketch16.addConstraint(Sketcher.Constraint("Horizontal", 1, 2, 8, 2))
sketch16.addConstraint(Sketcher.Constraint("Horizontal", 3, 2, 10, 2))
sketch16.addConstraint(Sketcher.Constraint("Horizontal", 7, 2, 12, 2))
sketch16.addConstraint(Sketcher.Constraint("Horizontal", 6, 2, 13, 2))
sketch16.addConstraint(Sketcher.Constraint("Equal", 3, 9))
sketch16.addConstraint(Sketcher.Constraint("Equal", 6, 12))
sketch16.addConstraint(Sketcher.Constraint("DistanceX", 1, 2, 1, 1, 20.2))
sketch16.addConstraint(Sketcher.Constraint("DistanceX", 4, 1, 4, 2, 18.2))
sketch16.addConstraint(Sketcher.Constraint("DistanceX", 4, 2, 0, 2, 1.0))
sketch16.addConstraint(Sketcher.Constraint("DistanceY", 0, 2, 4, 2, 1.0))
sketch16.addConstraint(Sketcher.Constraint("DistanceY", 5, 2, 3, 2, 1.0))
sketch16.addConstraint(Sketcher.Constraint("DistanceX", 12, 2, 8, 2, 1.0))
sketch16.addConstraint(Sketcher.Constraint("DistanceY", 0, 2, 0, 1, 8.85))
sketch16.addConstraint(Sketcher.Constraint("DistanceX", 8, 2, 1, 2, 10.3))
sketch16.addConstraint(Sketcher.Constraint("DistanceX", -1, 1, 0, 2, 25.625))
sketch16.addConstraint(Sketcher.Constraint("DistanceY", -1, 1, 0, 2, 28.025))
pad14 = body.newObject("PartDesign::Pad", "Pad013")
pad14.Profile = sketch16
pad14.Length = 9
pad14.Reversed = True

# Sketch on XY plane
sketch17 = body.newObject("Sketcher::SketchObject", "Sketch016")
sketch17.AttachmentSupport = (doc.getObject("XY_Plane"), [""])
sketch17.MapMode = "FlatFace"
sketch17.addGeometry(Part.LineSegment(Vector(25, 36, 0), Vector(25, 29, 0)), False)
sketch17.addGeometry(Part.LineSegment(Vector(25, 29, 0), Vector(6, 29, 0)), False)
sketch17.addGeometry(Part.LineSegment(Vector(6, 29, 0), Vector(6, 36, 0)), False)
sketch17.addGeometry(Part.LineSegment(Vector(6, 36, 0), Vector(25, 36, 0)), False)
sketch17.addGeometry(Part.LineSegment(Vector(-6, 36, 0), Vector(-6, 29, 0)), False)
sketch17.addGeometry(Part.LineSegment(Vector(-6, 29, 0), Vector(-24, 29, 0)), False)
sketch17.addGeometry(Part.LineSegment(Vector(-24, 29, 0), Vector(-24, 36, 0)), False)
sketch17.addGeometry(Part.LineSegment(Vector(-24, 36, 0), Vector(-6, 36, 0)), False)
sketch17.addConstraint(Sketcher.Constraint("Coincident", 0, 2, 1, 1))
sketch17.addConstraint(Sketcher.Constraint("Coincident", 1, 2, 2, 1))
sketch17.addConstraint(Sketcher.Constraint("Coincident", 2, 2, 3, 1))
sketch17.addConstraint(Sketcher.Constraint("Coincident", 3, 2, 0, 1))
sketch17.addConstraint(Sketcher.Constraint("Coincident", 4, 2, 5, 1))
sketch17.addConstraint(Sketcher.Constraint("Coincident", 5, 2, 6, 1))
sketch17.addConstraint(Sketcher.Constraint("Coincident", 6, 2, 7, 1))
sketch17.addConstraint(Sketcher.Constraint("Coincident", 7, 2, 4, 1))
sketch17.addConstraint(Sketcher.Constraint("Vertical", 0))
sketch17.addConstraint(Sketcher.Constraint("Horizontal", 1))
sketch17.addConstraint(Sketcher.Constraint("Vertical", 2))
sketch17.addConstraint(Sketcher.Constraint("Horizontal", 3))
sketch17.addConstraint(Sketcher.Constraint("Vertical", 4))
sketch17.addConstraint(Sketcher.Constraint("Horizontal", 5))
sketch17.addConstraint(Sketcher.Constraint("Vertical", 6))
sketch17.addConstraint(Sketcher.Constraint("Horizontal", 7))
sketch17.addConstraint(Sketcher.Constraint("Horizontal", 1, 2, 4, 2))
sketch17.addConstraint(Sketcher.Constraint("Horizontal", 3, 2, 6, 2))
sketch17.addConstraint(Sketcher.Constraint("Equal", 3, 5))
sketch17.addConstraint(Sketcher.Constraint("DistanceX", 1, 2, 1, 1, 18.2))
sketch17.addConstraint(Sketcher.Constraint("DistanceY", 0, 2, 0, 1, 6.85))
sketch17.addConstraint(Sketcher.Constraint("DistanceX", 4, 2, 1, 2, 12.3))
sketch17.addConstraint(Sketcher.Constraint("DistanceX", -1, 1, 0, 2, 24.625))
sketch17.addConstraint(Sketcher.Constraint("DistanceY", -1, 1, 0, 2, 29.025))
pad15 = body.newObject("PartDesign::Pad", "Pad014")
pad15.Profile = sketch17
pad15.Length = 2.55
pad15.Reversed = True

# Sketch on XY plane
sketch18 = body.newObject("Sketcher::SketchObject", "Sketch017")
sketch18.AttachmentSupport = (doc.getObject("XY_Plane"), [""])
sketch18.MapMode = "FlatFace"
sketch18.AttachmentOffset = App.Placement(Vector(0, 0, -9), App.Rotation())
sketch18.addGeometry(Part.LineSegment(Vector(17.7, 36.9, 0), Vector(17.7, 35.9, 0)), False)
sketch18.addGeometry(Part.LineSegment(Vector(17.7, 35.9, 0), Vector(13.3, 35.9, 0)), False)
sketch18.addGeometry(Part.LineSegment(Vector(13.3, 35.9, 0), Vector(13.3, 36.9, 0)), False)
sketch18.addGeometry(Part.LineSegment(Vector(13.3, 36.9, 0), Vector(17.7, 36.9, 0)), False)
sketch18.addGeometry(Part.LineSegment(Vector(-12.8, 36.9, 0), Vector(-12.8, 35.9, 0)), False)
sketch18.addGeometry(Part.LineSegment(Vector(-12.8, 35.9, 0), Vector(-17.2, 35.9, 0)), False)
sketch18.addGeometry(Part.LineSegment(Vector(-17.2, 35.9, 0), Vector(-17.2, 36.9, 0)), False)
sketch18.addGeometry(Part.LineSegment(Vector(-17.2, 36.9, 0), Vector(-12.8, 36.9, 0)), False)
sketch18.addConstraint(Sketcher.Constraint("Coincident", 0, 2, 1, 1))
sketch18.addConstraint(Sketcher.Constraint("Coincident", 1, 2, 2, 1))
sketch18.addConstraint(Sketcher.Constraint("Coincident", 2, 2, 3, 1))
sketch18.addConstraint(Sketcher.Constraint("Coincident", 3, 2, 0, 1))
sketch18.addConstraint(Sketcher.Constraint("Coincident", 4, 2, 5, 1))
sketch18.addConstraint(Sketcher.Constraint("Coincident", 5, 2, 6, 1))
sketch18.addConstraint(Sketcher.Constraint("Coincident", 6, 2, 7, 1))
sketch18.addConstraint(Sketcher.Constraint("Coincident", 7, 2, 4, 1))
sketch18.addConstraint(Sketcher.Constraint("Vertical", 0))
sketch18.addConstraint(Sketcher.Constraint("Horizontal", 1))
sketch18.addConstraint(Sketcher.Constraint("Vertical", 2))
sketch18.addConstraint(Sketcher.Constraint("Horizontal", 3))
sketch18.addConstraint(Sketcher.Constraint("Vertical", 4))
sketch18.addConstraint(Sketcher.Constraint("Horizontal", 5))
sketch18.addConstraint(Sketcher.Constraint("Vertical", 6))
sketch18.addConstraint(Sketcher.Constraint("Horizontal", 7))
sketch18.addConstraint(Sketcher.Constraint("Horizontal", 1, 2, 4, 2))
sketch18.addConstraint(Sketcher.Constraint("Horizontal", 3, 2, 6, 2))
sketch18.addConstraint(Sketcher.Constraint("Equal", 3, 5))
sketch18.addConstraint(Sketcher.Constraint("DistanceY", 0, 2, 0, 1, 1.0))
sketch18.addConstraint(Sketcher.Constraint("DistanceX", 1, 2, 1, 1, 4.4))
sketch18.addConstraint(Sketcher.Constraint("DistanceX", 4, 2, 1, 2, 26.1))
sketch18.addConstraint(Sketcher.Constraint("DistanceX", -1, 1, 0, 2, 17.725))
sketch18.addConstraint(Sketcher.Constraint("DistanceY", -1, 1, 0, 2, 35.875))
pocket3 = body.newObject("PartDesign::Pocket", "Pocket002")
pocket3.Profile = sketch18
pocket3.Length = 6.45
pocket3.Reversed = True

# Sketch on YZ plane
sketch19 = body.newObject("Sketcher::SketchObject", "Sketch018")
sketch19.AttachmentSupport = (doc.getObject("YZ_Plane"), [""])
sketch19.MapMode = "FlatFace"
sketch19.AttachmentOffset = App.Placement(Vector(0, 0, -46.125), App.Rotation())
sketch19.addGeometry(Part.LineSegment(Vector(19.6, -2.4, 0), Vector(-4.1, -2.4, 0)), False)
sketch19.addGeometry(Part.LineSegment(Vector(-4.1, -2.4, 0), Vector(-4.1, -0.3, 0)), False)
sketch19.addGeometry(Part.LineSegment(Vector(-4.1, -0.3, 0), Vector(19.6, -0.3, 0)), False)
sketch19.addGeometry(Part.LineSegment(Vector(19.6, -0.3, 0), Vector(19.6, -2.4, 0)), False)
sketch19.addConstraint(Sketcher.Constraint("Coincident", 0, 2, 1, 1))
sketch19.addConstraint(Sketcher.Constraint("Coincident", 1, 2, 2, 1))
sketch19.addConstraint(Sketcher.Constraint("Coincident", 2, 2, 3, 1))
sketch19.addConstraint(Sketcher.Constraint("Coincident", 3, 2, 0, 1))
sketch19.addConstraint(Sketcher.Constraint("Horizontal", 0))
sketch19.addConstraint(Sketcher.Constraint("Vertical", 1))
sketch19.addConstraint(Sketcher.Constraint("Horizontal", 2))
sketch19.addConstraint(Sketcher.Constraint("Vertical", 3))
sketch19.addConstraint(Sketcher.Constraint("DistanceX", 0, 2, 0, 1, 23.75))
sketch19.addConstraint(Sketcher.Constraint("DistanceX", 0, 2, -1, 1, 4.1))
sketch19.addConstraint(Sketcher.Constraint("DistanceY", 1, 1, 1, 2, 2.153))
sketch19.addConstraint(Sketcher.Constraint("DistanceY", 1, 2, -1, 1, 0.27))
pad16 = body.newObject("PartDesign::Pad", "Pad015")
pad16.Profile = sketch19
pad16.Length = 10.4
pad16.Reversed = True
doc.recompute()

fillet = body.newObject("PartDesign::Fillet", "Fillet")
fillet.Base = (pad16, edges_at(pad16, [(-56.525, -4.1, -1.347), (-56.525, 19.65, -1.347)]))
fillet.Radius = 1

doc.recompute()
